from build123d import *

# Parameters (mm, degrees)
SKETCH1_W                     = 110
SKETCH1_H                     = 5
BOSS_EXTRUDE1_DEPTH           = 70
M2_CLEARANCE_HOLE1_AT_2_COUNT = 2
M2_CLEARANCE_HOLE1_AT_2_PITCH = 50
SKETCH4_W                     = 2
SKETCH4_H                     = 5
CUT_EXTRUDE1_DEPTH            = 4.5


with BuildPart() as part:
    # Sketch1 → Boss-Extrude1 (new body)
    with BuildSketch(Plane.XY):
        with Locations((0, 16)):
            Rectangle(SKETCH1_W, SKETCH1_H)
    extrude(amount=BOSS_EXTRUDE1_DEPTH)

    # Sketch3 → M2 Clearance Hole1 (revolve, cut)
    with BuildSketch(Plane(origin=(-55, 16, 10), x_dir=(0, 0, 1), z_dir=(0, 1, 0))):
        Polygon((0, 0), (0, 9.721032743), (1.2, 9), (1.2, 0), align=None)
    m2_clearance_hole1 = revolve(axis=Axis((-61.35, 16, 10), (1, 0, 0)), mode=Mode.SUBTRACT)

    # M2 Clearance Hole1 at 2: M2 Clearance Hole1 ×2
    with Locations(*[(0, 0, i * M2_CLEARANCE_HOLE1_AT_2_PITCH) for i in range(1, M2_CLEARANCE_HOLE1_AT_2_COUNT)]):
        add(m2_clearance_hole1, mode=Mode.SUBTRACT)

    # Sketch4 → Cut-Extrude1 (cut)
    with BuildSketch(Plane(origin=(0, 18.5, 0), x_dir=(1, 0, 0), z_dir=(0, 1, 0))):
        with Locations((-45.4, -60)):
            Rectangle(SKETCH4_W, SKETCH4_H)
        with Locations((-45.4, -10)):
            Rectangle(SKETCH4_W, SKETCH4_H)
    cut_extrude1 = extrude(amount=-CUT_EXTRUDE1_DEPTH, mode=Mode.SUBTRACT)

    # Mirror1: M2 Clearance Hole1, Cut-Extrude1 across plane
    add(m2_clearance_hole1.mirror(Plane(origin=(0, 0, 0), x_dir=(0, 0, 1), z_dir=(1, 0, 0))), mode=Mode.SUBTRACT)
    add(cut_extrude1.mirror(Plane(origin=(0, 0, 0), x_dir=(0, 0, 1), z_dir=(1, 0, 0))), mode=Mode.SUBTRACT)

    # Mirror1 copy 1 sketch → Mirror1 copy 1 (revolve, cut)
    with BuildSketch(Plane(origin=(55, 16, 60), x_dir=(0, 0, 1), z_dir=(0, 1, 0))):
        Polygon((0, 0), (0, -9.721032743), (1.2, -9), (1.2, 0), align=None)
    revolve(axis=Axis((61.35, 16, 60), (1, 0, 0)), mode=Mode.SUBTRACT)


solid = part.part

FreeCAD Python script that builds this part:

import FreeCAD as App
import Part
import Sketcher
Q = App.Units.Quantity

doc = App.newDocument("Part")
body = doc.addObject("PartDesign::Body", "Body")

sketch1 = doc.addObject("Sketcher::SketchObject", "Sketch")
body.addObject(sketch1)
sketch1.AttachmentSupport = (doc.XY_Plane, [""])
sketch1.MapMode = "FlatFace"
sketch1.addGeometry([
    Part.LineSegment(App.Vector(-55, 18.5, 0), App.Vector(-55, 13.5, 0)),
    Part.LineSegment(App.Vector(-55, 13.5, 0), App.Vector(55, 13.5, 0)),
    Part.LineSegment(App.Vector(55, 13.5, 0), App.Vector(55, 18.5, 0)),
    Part.LineSegment(App.Vector(55, 18.5, 0), App.Vector(-55, 18.5, 0)),
], False)
sketch1.addConstraint([
    Sketcher.Constraint("Coincident", 0, 2, 1, 1),
    Sketcher.Constraint("Coincident", 1, 2, 2, 1),
    Sketcher.Constraint("Coincident", 2, 2, 3, 1),
    Sketcher.Constraint("Coincident", 3, 2, 0, 1),
    Sketcher.Constraint("Vertical", 0),
    Sketcher.Constraint("Horizontal", 1),
    Sketcher.Constraint("Vertical", 2),
    Sketcher.Constraint("Horizontal", 3),
    Sketcher.Constraint("DistanceX", 1, 1, 1, 2, Q("110 mm")),
    Sketcher.Constraint("DistanceY", 0, 2, 0, 1, Q("5 mm")),
    Sketcher.Constraint("DistanceX", 0, 2, -1, 1, Q("55 mm")),
    Sketcher.Constraint("DistanceY", -1, 1, 0, 2, Q("13.5 mm")),
])
pad1 = doc.addObject("PartDesign::Pad", "Pad")
body.addObject(pad1)
pad1.Profile = sketch1
pad1.Length = 70

sketch2 = doc.addObject("Sketcher::SketchObject", "Sketch001")
body.addObject(sketch2)
sketch2.AttachmentSupport = (doc.XZ_Plane, [""])
sketch2.MapMode = "FlatFace"
sketch2.AttachmentOffset = App.Placement(App.Vector(0, 0, -16), App.Rotation())
sketch2.addGeometry([
    Part.LineSegment(App.Vector(-45.278967, 10, 0), App.Vector(-55, 10, 0)),
    Part.LineSegment(App.Vector(-55, 10, 0), App.Vector(-55, 11.2, 0)),
    Part.LineSegment(App.Vector(-55, 11.2, 0), App.Vector(-46, 11.2, 0)),
    Part.LineSegment(App.Vector(-46, 11.2, 0), App.Vector(-45.278967, 10, 0)),
], False)
sketch2.addGeometry(Part.LineSegment(App.Vector(-55, 10, 0), App.Vector(-45.278967, 10, 0)), True)
sketch2.addConstraint([
    Sketcher.Constraint("Coincident", 0, 2, 1, 1),
    Sketcher.Constraint("Coincident", 1, 2, 2, 1),
    Sketcher.Constraint("Coincident", 2, 2, 3, 1),
    Sketcher.Constraint("Coincident", 3, 2, 0, 1),
    Sketcher.Constraint("Horizontal", 0),
    Sketcher.Constraint("Vertical", 1),
    Sketcher.Constraint("Horizontal", 2),
    Sketcher.Constraint("Horizontal", 4),
    Sketcher.Constraint("Coincident", 4, 1, 0, 2),
    Sketcher.Constraint("Equal", 0, 4),
    Sketcher.Constraint("DistanceX", 2, 1, 2, 2, Q("9 mm")),
    Sketcher.Constraint("Angle", 3, Q("-59 deg")),
    Sketcher.Constraint("DistanceY", 1, 1, 1, 2, Q("1.2 mm")),
    Sketcher.Constraint("DistanceX", 0, 2, -1, 1, Q("55 mm")),
    Sketcher.Constraint("DistanceY", -1, 1, 0, 2, Q("10 mm")),
])
groove = doc.addObject("PartDesign::Groove", "Groove")
body.addObject(groove)
groove.Profile = sketch2
groove.ReferenceAxis = (sketch2, ["Axis0"])
groove.Angle = 360
doc.recompute()

linearpattern = doc.addObject("PartDesign::LinearPattern", "LinearPattern")
body.addObject(linearpattern)
linearpattern.Originals = [groove]
linearpattern.Direction = (doc.Z_Axis, [""])
linearpattern.Mode = "offset"
linearpattern.Offset = 50
linearpattern.Occurrences = 2
body.Tip = linearpattern

sketch3 = doc.addObject("Sketcher::SketchObject", "Sketch002")
body.addObject(sketch3)
sketch3.AttachmentSupport = (doc.XZ_Plane, [""])
sketch3.MapMode = "FlatFace"
sketch3.AttachmentOffset = App.Placement(App.Vector(0, 0, -18.5), App.Rotation())
sketch3.addGeometry([
    Part.LineSegment(App.Vector(-46.4, 57.5, 0), App.Vector(-46.4, 62.5, 0)),
    Part.LineSegment(App.Vector(-46.4, 62.5, 0), App.Vector(-44.4, 62.5, 0)),
    Part.LineSegment(App.Vector(-44.4, 62.5, 0), App.Vector(-44.4, 57.5, 0)),
    Part.LineSegment(App.Vector(-44.4, 57.5, 0), App.Vector(-46.4, 57.5, 0)),
    Part.LineSegment(App.Vector(-46.4, 7.5, 0), App.Vector(-46.4, 12.5, 0)),
    Part.LineSegment(App.Vector(-46.4, 12.5, 0), App.Vector(-44.4, 12.5, 0)),
    Part.LineSegment(App.Vector(-44.4, 12.5, 0), App.Vector(-44.4, 7.5, 0)),
    Part.LineSegment(App.Vector(-44.4, 7.5, 0), App.Vector(-46.4, 7.5, 0)),
], False)
sketch3.addConstraint([
    Sketcher.Constraint("Coincident", 0, 2, 1, 1),
    Sketcher.Constraint("Coincident", 1, 2, 2, 1),
    Sketcher.Constraint("Coincident", 2, 2, 3, 1),
    Sketcher.Constraint("Coincident", 3, 2, 0, 1),
    Sketcher.Constraint("Coincident", 4, 2, 5, 1),
    Sketcher.Constraint("Coincident", 5, 2, 6, 1),
    Sketcher.Constraint("Coincident", 6, 2, 7, 1),
    Sketcher.Constraint("Coincident", 7, 2, 4, 1),
    Sketcher.Constraint("Vertical", 0),
    Sketcher.Constraint("Horizontal", 1),
    Sketcher.Constraint("Vertical", 2),
    Sketcher.Constraint("Horizontal", 3),
    Sketcher.Constraint("Vertical", 4),
    Sketcher.Constraint("Horizontal", 5),
    Sketcher.Constraint("Vertical", 6),
    Sketcher.Constraint("Horizontal", 7),
    Sketcher.Constraint("Vertical", 3, 2, 4, 2),
    Sketcher.Constraint("Vertical", 2, 2, 5, 2),
    Sketcher.Constraint("Equal", 2, 4),
    Sketcher.Constraint("DistanceX", 1, 1, 1, 2, Q("2 mm")),
    Sketcher.Constraint("DistanceY", 0, 1, 0, 2, Q("5 mm")),
    Sketcher.Constraint("DistanceY", 4, 2, 3, 2, Q("45 mm")),
    Sketcher.Constraint("DistanceX", 0, 2, -1, 1, Q("46.4 mm")),
    Sketcher.Constraint("DistanceY", -1, 1, 0, 2, Q("62.5 mm")),
])
pocket1 = doc.addObject("PartDesign::Pocket", "Pocket")
body.addObject(pocket1)
pocket1.Profile = sketch3
pocket1.Length = 4.5
pocket1.Reversed = True
doc.recompute()

mirrored = doc.addObject("PartDesign::Mirrored", "Mirrored")
body.addObject(mirrored)
mirrored.Originals = [groove, pocket1]
mirrored.MirrorPlane = (doc.YZ_Plane, [""])
body.Tip = mirrored

sketch4 = doc.addObject("Sketcher::SketchObject", "Sketch003")
body.addObject(sketch4)
sketch4.AttachmentSupport = (doc.XZ_Plane, [""])
sketch4.MapMode = "FlatFace"
sketch4.AttachmentOffset = App.Placement(App.Vector(0, 0, -16), App.Rotation())
sketch4.addGeometry([
    Part.LineSegment(App.Vector(55, 60, 0), App.Vector(45.278967, 60, 0)),
    Part.LineSegment(App.Vector(45.278967, 60, 0), App.Vector(46, 61.2, 0)),
    Part.LineSegment(App.Vector(46, 61.2, 0), App.Vector(55, 61.2, 0)),
    Part.LineSegment(App.Vector(55, 61.2, 0), App.Vector(55, 60, 0)),
], False)
sketch4.addGeometry(Part.LineSegment(App.Vector(45.278967, 60, 0), App.Vector(55, 60, 0)), True)
sketch4.addConstraint([
    Sketcher.Constraint("Coincident", 0, 2, 1, 1),
    Sketcher.Constraint("Coincident", 1, 2, 2, 1),
    Sketcher.Constraint("Coincident", 2, 2, 3, 1),
    Sketcher.Constraint("Coincident", 3, 2, 0, 1),
    Sketcher.Constraint("Horizontal", 0),
    Sketcher.Constraint("Horizontal", 2),
    Sketcher.Constraint("Vertical", 3),
    Sketcher.Constraint("Horizontal", 4),
    Sketcher.Constraint("Coincident", 4, 1, 0, 2),
    Sketcher.Constraint("Vertical", 2, 2, 4, 2),
    Sketcher.Constraint("DistanceX", 2, 1, 2, 2, Q("9 mm")),
    Sketcher.Constraint("Angle", 1, Q("59 deg")),
    Sketcher.Constraint("DistanceY", 3, 2, 3, 1, Q("1.2 mm")),
    Sketcher.Constraint("DistanceY", -1, 1, 0, 2, Q("60 mm")),
    Sketcher.Constraint("DistanceX", -1, 1, 1, 2, Q("46 mm")),
])
groove2 = doc.addObject("PartDesign::Groove", "Groove001")
body.addObject(groove2)
groove2.Profile = sketch4
groove2.ReferenceAxis = (sketch4, ["Axis0"])
groove2.Angle = 360

doc.recompute()
